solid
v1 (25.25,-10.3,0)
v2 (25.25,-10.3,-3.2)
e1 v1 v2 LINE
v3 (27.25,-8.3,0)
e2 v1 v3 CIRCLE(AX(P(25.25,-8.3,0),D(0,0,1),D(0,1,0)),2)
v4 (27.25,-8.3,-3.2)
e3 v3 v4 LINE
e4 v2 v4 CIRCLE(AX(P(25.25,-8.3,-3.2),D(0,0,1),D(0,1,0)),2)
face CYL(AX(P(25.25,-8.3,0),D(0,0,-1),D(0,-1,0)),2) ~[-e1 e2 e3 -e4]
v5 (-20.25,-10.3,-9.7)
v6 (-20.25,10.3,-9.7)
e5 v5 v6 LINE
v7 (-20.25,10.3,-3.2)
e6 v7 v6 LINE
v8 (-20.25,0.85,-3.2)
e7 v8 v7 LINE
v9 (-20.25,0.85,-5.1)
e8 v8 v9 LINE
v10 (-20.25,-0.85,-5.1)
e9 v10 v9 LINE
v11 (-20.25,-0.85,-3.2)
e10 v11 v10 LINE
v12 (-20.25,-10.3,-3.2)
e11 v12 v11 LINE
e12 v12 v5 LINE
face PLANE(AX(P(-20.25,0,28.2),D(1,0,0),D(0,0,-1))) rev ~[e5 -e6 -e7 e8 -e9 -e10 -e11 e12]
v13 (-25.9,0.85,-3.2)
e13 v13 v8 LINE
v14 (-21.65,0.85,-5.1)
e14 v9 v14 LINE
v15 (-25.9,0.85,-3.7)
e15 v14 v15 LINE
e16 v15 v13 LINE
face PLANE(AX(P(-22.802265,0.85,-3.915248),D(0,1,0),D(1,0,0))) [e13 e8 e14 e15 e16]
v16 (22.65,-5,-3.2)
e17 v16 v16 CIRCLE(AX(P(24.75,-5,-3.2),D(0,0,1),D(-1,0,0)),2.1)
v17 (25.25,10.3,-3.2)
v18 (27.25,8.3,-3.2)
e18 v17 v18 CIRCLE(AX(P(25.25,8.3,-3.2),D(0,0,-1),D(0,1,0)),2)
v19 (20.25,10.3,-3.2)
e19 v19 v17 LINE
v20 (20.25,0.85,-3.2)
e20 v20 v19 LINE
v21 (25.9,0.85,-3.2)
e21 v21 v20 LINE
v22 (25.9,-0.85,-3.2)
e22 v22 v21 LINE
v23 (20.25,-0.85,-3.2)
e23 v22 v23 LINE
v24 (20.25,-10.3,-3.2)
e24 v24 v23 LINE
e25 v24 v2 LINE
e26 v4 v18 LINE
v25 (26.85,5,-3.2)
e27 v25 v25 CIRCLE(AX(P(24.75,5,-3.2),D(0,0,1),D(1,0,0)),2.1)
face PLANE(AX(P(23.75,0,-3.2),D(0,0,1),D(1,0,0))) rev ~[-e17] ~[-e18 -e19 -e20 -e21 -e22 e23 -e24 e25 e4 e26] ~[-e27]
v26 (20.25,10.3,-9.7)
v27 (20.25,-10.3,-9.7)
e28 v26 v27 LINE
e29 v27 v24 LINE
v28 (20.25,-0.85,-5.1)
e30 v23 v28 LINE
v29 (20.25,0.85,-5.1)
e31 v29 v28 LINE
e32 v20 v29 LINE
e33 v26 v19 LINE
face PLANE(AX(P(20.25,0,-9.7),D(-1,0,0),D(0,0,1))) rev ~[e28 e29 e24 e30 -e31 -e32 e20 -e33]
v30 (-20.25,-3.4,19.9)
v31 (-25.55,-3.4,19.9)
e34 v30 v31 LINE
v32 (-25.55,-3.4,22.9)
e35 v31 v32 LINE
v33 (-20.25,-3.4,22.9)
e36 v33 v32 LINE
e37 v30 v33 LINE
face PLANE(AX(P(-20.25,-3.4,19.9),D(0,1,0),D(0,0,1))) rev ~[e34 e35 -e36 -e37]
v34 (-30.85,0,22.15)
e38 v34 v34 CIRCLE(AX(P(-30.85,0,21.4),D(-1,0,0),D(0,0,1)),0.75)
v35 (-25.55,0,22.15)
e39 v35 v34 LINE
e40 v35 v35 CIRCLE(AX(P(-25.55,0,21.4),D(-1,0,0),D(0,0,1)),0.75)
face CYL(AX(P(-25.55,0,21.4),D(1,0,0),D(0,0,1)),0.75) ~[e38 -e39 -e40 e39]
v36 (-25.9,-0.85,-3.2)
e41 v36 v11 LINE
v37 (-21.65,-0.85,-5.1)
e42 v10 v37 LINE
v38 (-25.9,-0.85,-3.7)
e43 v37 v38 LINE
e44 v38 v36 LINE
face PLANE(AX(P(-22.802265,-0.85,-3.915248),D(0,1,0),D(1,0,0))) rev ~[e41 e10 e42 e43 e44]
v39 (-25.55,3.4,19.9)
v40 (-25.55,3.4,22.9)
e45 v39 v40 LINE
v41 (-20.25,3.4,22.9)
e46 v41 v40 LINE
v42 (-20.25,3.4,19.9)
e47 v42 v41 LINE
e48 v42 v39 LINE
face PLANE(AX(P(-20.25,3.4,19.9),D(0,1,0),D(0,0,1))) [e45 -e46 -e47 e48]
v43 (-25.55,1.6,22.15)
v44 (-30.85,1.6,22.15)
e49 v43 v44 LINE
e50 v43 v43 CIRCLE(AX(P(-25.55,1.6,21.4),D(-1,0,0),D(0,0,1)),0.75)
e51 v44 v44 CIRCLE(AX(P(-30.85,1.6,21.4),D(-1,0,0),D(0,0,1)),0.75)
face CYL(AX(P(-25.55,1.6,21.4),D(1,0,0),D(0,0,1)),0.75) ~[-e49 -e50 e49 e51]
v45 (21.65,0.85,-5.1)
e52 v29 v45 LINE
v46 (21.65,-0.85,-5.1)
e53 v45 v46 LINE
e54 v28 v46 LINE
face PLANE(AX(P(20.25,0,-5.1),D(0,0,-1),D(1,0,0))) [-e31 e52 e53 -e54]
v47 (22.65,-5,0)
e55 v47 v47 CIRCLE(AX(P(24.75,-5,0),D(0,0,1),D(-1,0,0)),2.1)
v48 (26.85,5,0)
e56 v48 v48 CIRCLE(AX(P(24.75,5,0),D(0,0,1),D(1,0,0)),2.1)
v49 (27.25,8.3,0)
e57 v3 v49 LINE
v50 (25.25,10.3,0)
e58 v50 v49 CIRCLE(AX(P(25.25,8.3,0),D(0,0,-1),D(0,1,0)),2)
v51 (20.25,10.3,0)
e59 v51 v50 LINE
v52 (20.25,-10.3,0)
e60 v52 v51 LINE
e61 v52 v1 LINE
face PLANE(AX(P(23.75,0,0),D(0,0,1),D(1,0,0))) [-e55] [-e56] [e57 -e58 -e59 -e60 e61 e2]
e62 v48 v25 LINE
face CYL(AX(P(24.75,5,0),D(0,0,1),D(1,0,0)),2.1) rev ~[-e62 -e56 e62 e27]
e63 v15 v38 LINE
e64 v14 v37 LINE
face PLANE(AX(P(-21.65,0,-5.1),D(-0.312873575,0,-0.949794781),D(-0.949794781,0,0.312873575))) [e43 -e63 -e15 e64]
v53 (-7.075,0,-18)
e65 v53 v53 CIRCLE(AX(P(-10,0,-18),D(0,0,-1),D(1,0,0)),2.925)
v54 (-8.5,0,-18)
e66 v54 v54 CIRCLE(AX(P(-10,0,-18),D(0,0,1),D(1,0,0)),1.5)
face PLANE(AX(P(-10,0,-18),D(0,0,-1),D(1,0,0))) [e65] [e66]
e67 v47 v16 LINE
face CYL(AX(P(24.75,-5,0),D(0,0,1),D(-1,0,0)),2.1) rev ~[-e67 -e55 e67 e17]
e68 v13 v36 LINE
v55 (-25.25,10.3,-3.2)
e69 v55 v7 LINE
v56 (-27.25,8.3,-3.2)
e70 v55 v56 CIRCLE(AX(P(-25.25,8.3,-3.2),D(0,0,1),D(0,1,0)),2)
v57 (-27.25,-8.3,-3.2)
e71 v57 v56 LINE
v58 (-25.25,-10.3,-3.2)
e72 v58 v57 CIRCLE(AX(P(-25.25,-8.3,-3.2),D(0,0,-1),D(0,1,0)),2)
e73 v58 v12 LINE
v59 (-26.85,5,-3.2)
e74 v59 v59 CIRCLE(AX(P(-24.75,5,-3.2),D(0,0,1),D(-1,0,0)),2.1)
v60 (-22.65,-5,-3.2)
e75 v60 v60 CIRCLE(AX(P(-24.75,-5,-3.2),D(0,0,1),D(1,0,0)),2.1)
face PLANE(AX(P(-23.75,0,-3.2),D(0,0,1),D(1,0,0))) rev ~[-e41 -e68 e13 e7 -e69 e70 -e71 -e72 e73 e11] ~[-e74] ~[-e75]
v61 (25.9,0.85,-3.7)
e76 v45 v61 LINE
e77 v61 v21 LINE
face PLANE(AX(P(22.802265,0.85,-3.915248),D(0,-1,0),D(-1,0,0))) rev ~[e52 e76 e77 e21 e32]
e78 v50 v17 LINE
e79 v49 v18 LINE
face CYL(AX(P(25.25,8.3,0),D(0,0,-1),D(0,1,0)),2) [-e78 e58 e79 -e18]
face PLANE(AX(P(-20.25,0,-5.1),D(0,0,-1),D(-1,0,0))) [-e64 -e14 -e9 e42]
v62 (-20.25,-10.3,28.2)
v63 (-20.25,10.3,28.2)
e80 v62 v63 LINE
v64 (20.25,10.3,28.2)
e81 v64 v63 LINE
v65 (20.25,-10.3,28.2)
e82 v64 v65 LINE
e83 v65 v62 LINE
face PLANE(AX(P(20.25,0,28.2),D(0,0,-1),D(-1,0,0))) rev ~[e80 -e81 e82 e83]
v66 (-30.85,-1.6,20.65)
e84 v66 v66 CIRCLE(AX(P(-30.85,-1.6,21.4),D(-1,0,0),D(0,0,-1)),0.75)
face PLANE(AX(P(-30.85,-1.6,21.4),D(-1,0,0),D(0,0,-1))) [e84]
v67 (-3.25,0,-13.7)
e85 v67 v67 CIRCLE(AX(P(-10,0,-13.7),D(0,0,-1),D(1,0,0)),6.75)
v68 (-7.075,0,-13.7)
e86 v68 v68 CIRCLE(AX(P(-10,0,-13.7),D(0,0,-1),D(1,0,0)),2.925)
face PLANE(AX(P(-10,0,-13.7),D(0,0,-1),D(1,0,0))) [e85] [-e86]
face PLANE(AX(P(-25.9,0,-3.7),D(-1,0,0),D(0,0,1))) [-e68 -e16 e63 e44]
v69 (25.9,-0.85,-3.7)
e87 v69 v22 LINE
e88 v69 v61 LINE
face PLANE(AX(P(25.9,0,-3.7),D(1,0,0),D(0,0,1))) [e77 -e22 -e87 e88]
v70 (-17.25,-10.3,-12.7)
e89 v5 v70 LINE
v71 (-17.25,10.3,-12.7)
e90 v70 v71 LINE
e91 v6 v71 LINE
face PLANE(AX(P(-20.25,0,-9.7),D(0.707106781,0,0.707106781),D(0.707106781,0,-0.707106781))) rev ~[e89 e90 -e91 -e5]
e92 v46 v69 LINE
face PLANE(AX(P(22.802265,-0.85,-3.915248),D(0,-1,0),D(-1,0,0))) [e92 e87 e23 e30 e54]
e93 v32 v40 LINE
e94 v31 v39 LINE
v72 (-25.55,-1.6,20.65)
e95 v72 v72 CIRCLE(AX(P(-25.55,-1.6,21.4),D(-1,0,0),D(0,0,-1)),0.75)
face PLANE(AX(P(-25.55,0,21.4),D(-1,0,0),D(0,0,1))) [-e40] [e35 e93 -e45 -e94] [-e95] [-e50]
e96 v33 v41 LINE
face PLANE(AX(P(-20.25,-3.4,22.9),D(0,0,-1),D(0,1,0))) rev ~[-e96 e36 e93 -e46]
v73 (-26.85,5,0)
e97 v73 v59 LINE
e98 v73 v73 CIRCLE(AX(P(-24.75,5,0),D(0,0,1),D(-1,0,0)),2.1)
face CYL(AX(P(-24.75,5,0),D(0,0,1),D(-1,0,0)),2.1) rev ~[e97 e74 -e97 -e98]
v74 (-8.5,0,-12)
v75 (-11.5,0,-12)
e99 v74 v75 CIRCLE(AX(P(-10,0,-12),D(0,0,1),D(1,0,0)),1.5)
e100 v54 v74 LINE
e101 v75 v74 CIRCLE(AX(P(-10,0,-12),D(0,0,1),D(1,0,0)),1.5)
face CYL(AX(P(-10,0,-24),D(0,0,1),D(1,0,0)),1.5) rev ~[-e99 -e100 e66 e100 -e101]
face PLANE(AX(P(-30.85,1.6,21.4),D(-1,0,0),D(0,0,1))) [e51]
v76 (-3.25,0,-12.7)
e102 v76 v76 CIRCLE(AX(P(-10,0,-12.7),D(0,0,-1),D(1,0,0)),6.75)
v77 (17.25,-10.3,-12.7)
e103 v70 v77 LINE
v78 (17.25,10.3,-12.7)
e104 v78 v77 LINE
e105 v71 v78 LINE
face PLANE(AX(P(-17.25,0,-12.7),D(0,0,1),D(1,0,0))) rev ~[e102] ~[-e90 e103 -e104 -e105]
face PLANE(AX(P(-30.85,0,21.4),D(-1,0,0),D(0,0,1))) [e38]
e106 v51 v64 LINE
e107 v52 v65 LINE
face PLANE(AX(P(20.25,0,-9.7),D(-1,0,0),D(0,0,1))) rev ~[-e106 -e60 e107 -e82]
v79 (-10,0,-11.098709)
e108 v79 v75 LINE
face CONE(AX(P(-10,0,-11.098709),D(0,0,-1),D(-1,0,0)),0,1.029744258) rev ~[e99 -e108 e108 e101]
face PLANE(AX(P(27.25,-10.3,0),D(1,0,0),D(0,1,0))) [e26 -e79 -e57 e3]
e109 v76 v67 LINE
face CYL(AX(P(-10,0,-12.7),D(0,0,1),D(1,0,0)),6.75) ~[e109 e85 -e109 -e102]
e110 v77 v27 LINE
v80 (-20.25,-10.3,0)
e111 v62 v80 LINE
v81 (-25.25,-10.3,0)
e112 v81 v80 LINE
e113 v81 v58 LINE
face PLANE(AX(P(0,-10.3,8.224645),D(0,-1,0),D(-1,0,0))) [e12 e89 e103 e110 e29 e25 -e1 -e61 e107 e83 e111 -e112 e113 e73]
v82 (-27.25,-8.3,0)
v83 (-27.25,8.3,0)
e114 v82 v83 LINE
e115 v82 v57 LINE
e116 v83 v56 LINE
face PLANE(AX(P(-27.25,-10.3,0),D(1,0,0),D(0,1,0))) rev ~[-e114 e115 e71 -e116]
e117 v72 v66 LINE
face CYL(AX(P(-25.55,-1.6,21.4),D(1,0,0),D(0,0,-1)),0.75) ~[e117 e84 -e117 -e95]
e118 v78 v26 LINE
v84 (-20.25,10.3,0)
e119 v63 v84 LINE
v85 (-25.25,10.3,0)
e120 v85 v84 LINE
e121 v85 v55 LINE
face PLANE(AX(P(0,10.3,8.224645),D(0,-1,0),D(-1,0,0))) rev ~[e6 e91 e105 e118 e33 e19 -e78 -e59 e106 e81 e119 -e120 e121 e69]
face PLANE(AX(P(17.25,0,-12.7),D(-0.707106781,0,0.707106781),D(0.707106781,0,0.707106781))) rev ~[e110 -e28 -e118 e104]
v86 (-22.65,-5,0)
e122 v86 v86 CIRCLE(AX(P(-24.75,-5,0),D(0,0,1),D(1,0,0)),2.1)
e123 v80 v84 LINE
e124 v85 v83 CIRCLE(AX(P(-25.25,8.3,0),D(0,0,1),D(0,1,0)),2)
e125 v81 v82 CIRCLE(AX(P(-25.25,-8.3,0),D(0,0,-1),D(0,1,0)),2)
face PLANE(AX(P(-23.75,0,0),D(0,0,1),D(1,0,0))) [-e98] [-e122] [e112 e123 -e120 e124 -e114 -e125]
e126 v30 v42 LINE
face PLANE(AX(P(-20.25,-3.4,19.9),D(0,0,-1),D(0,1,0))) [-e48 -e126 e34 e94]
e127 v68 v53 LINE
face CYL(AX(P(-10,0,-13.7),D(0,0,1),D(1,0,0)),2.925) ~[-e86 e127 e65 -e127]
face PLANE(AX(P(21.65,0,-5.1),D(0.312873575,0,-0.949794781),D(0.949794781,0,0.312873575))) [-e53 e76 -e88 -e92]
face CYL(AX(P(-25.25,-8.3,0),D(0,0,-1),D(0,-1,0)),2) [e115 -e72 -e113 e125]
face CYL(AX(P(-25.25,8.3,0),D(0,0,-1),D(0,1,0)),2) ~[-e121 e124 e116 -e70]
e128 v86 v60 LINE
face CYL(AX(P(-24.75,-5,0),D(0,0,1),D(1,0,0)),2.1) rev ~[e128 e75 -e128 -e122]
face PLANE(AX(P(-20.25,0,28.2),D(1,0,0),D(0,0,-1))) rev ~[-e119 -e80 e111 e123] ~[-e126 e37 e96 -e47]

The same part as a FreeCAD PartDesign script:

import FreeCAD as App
import Part
import Sketcher

V = App.Vector


def edges_at(feature, points):
    """Names of the edges that pass closest to the given points."""
    edges = feature.Shape.Edges
    near = lambda p: min(range(len(edges)), key=lambda i: edges[i].distToShape(Part.Vertex(*p))[0])
    return sorted({f"Edge{near(p) + 1}" for p in points})

doc = App.newDocument("Part")
body = doc.addObject("PartDesign::Body", "Body")

# Sketch on XZ plane
sketch1 = doc.addObject("Sketcher::SketchObject", "Sketch")
body.addObject(sketch1)
sketch1.AttachmentSupport = (doc.XZ_Plane, [""])
sketch1.MapMode = "FlatFace"
sketch1.addGeometry([
    Part.LineSegment(V(17.25, -12.7, 0), V(-17.25, -12.7, 0)),  # 0
    Part.LineSegment(V(-17.25, -12.7, 0), V(-20.25, -9.7, 0)),  # 1
    Part.LineSegment(V(-20.25, -9.7, 0), V(-20.25, 28.2, 0)),  # 2
    Part.LineSegment(V(-20.25, 28.2, 0), V(20.25, 28.2, 0)),  # 3
    Part.LineSegment(V(20.25, 28.2, 0), V(20.25, -9.7, 0)),  # 4
    Part.LineSegment(V(20.25, -9.7, 0), V(17.25, -12.7, 0)),  # 5
], False)
sketch1.addConstraint([
    Sketcher.Constraint("Coincident", 0, 2, 1, 1),
    Sketcher.Constraint("Coincident", 1, 2, 2, 1),
    Sketcher.Constraint("Coincident", 2, 2, 3, 1),
    Sketcher.Constraint("Coincident", 3, 2, 4, 1),
    Sketcher.Constraint("Coincident", 4, 2, 5, 1),
    Sketcher.Constraint("Coincident", 5, 2, 0, 1),
    Sketcher.Constraint("Horizontal", 0),
    Sketcher.Constraint("Vertical", 2),
    Sketcher.Constraint("Horizontal", 3),
    Sketcher.Constraint("Vertical", 4),
    Sketcher.Constraint("Symmetric", 1, 2, 4, 2, -2),
    Sketcher.Constraint("Perpendicular", 1, 5),
    Sketcher.Constraint("Equal", 1, 5),
    Sketcher.Constraint("DistanceX", 0, 2, 0, 1, 34.5),
    Sketcher.Constraint("DistanceX", 3, 1, 3, 2, 40.5),
    Sketcher.Constraint("DistanceY", 2, 1, 2, 2, 37.9),
    Sketcher.Constraint("DistanceY", 0, 2, -1, 1, 12.7),
])
pad1 = doc.addObject("PartDesign::Pad", "Pad")
body.addObject(pad1)
pad1.Profile = sketch1
pad1.Length = 20.6
pad1.Midplane = True

# Sketch on XY plane
sketch2 = doc.addObject("Sketcher::SketchObject", "Sketch001")
body.addObject(sketch2)
sketch2.AttachmentSupport = (doc.XY_Plane, [""])
sketch2.MapMode = "FlatFace"
sketch2.addGeometry([
    Part.LineSegment(V(20.25, 10.3, 0), V(20.25, -10.3, 0)),  # 0
    Part.LineSegment(V(20.25, -10.3, 0), V(27.25, -10.3, 0)),  # 1
    Part.LineSegment(V(27.25, -10.3, 0), V(27.25, 10.3, 0)),  # 2
    Part.LineSegment(V(27.25, 10.3, 0), V(20.25, 10.3, 0)),  # 3
    Part.Circle(V(24.75, -5, 0), V(0, 0, 1), 2.1),  # 4
    Part.Circle(V(24.75, 5, 0), V(0, 0, 1), 2.1),  # 5
    Part.LineSegment(V(-27.25, 10.3, 0), V(-27.25, -10.3, 0)),  # 6
    Part.LineSegment(V(-27.25, -10.3, 0), V(-20.25, -10.3, 0)),  # 7
    Part.LineSegment(V(-20.25, -10.3, 0), V(-20.25, 10.3, 0)),  # 8
    Part.LineSegment(V(-20.25, 10.3, 0), V(-27.25, 10.3, 0)),  # 9
    Part.Circle(V(-24.75, -5, 0), V(0, 0, 1), 2.1),  # 10
    Part.Circle(V(-24.75, 5, 0), V(0, 0, 1), 2.1),  # 11
], False)
sketch2.addConstraint([
    Sketcher.Constraint("Coincident", 0, 2, 1, 1),
    Sketcher.Constraint("Coincident", 1, 2, 2, 1),
    Sketcher.Constraint("Coincident", 2, 2, 3, 1),
    Sketcher.Constraint("Coincident", 3, 2, 0, 1),
    Sketcher.Constraint("Coincident", 6, 2, 7, 1),
    Sketcher.Constraint("Coincident", 7, 2, 8, 1),
    Sketcher.Constraint("Coincident", 8, 2, 9, 1),
    Sketcher.Constraint("Coincident", 9, 2, 6, 1),
    Sketcher.Constraint("Vertical", 0),
    Sketcher.Constraint("Horizontal", 1),
    Sketcher.Constraint("Vertical", 2),
    Sketcher.Constraint("Horizontal", 3),
    Sketcher.Constraint("Vertical", 6),
    Sketcher.Constraint("Horizontal", 7),
    Sketcher.Constraint("Vertical", 8),
    Sketcher.Constraint("Horizontal", 9),
    Sketcher.Constraint("Equal", 4, 5),
    Sketcher.Constraint("Equal", 5, 10),
    Sketcher.Constraint("Equal", 10, 11),
    Sketcher.Constraint("Symmetric", 5, 3, 10, 3, -1, 1),
    Sketcher.Constraint("Symmetric", 4, 3, 11, 3, -1, 1),
    Sketcher.Constraint("Symmetric", 2, 2, 6, 2, -1, 1),
    Sketcher.Constraint("Symmetric", 0, 2, 8, 2, -1, 1),
    Sketcher.Constraint("Symmetric", 4, 3, 10, 3, -2),
    Sketcher.Constraint("Horizontal", 1, 2, 6, 2),
    Sketcher.Constraint("Diameter", 4, 4.2),
    Sketcher.Constraint("DistanceX", 1, 1, 1, 2, 7.0),
    Sketcher.Constraint("DistanceY", 0, 2, 0, 1, 20.6),
    Sketcher.Constraint("DistanceY", 4, 3, -1, 1, 5.0),
    Sketcher.Constraint("DistanceX", 10, 3, 0, 2, 45.0),
    Sketcher.Constraint("DistanceX", 10, 3, 4, 3, 49.5),
])
pad2 = doc.addObject("PartDesign::Pad", "Pad001")
body.addObject(pad2)
pad2.Profile = sketch2
pad2.Length = 3.2
pad2.Reversed = True

# Sketch on XZ plane
sketch3 = doc.addObject("Sketcher::SketchObject", "Sketch002")
body.addObject(sketch3)
sketch3.AttachmentSupport = (doc.XZ_Plane, [""])
sketch3.MapMode = "FlatFace"
sketch3.addGeometry([
    Part.LineSegment(V(20.25, -5.1, 0), V(20.25, -3.2, 0)),  # 0
    Part.LineSegment(V(20.25, -3.2, 0), V(25.9, -3.2, 0)),  # 1
    Part.LineSegment(V(25.9, -3.2, 0), V(25.9, -3.7, 0)),  # 2
    Part.LineSegment(V(25.9, -3.7, 0), V(21.65, -5.1, 0)),  # 3
    Part.LineSegment(V(21.65, -5.1, 0), V(20.25, -5.1, 0)),  # 4
    Part.LineSegment(V(-25.9, -3.2, 0), V(-20.25, -3.2, 0)),  # 5
    Part.LineSegment(V(-20.25, -3.2, 0), V(-20.25, -5.1, 0)),  # 6
    Part.LineSegment(V(-20.25, -5.1, 0), V(-21.65, -5.1, 0)),  # 7
    Part.LineSegment(V(-21.65, -5.1, 0), V(-25.9, -3.7, 0)),  # 8
    Part.LineSegment(V(-25.9, -3.7, 0), V(-25.9, -3.2, 0)),  # 9
], False)
sketch3.addConstraint([
    Sketcher.Constraint("Coincident", 0, 2, 1, 1),
    Sketcher.Constraint("Coincident", 1, 2, 2, 1),
    Sketcher.Constraint("Coincident", 2, 2, 3, 1),
    Sketcher.Constraint("Coincident", 3, 2, 4, 1),
    Sketcher.Constraint("Coincident", 4, 2, 0, 1),
    Sketcher.Constraint("Coincident", 5, 2, 6, 1),
    Sketcher.Constraint("Coincident", 6, 2, 7, 1),
    Sketcher.Constraint("Coincident", 7, 2, 8, 1),
    Sketcher.Constraint("Coincident", 8, 2, 9, 1),
    Sketcher.Constraint("Coincident", 9, 2, 5, 1),
    Sketcher.Constraint("Vertical", 0),
    Sketcher.Constraint("Horizontal", 1),
    Sketcher.Constraint("Vertical", 2),
    Sketcher.Constraint("Horizontal", 4),
    Sketcher.Constraint("Horizontal", 5),
    Sketcher.Constraint("Vertical", 6),
    Sketcher.Constraint("Horizontal", 7),
    Sketcher.Constraint("Vertical", 9),
    Sketcher.Constraint("Symmetric", 0, 2, 5, 2, -2),
    Sketcher.Constraint("Symmetric", 3, 2, 7, 2, -2),
    Sketcher.Constraint("Symmetric", 2, 2, 8, 2, -2),
    Sketcher.Constraint("DistanceX", 4, 2, 4, 1, 1.4),
    Sketcher.Constraint("DistanceY", 0, 1, 0, 2, 1.9),
    Sketcher.Constraint("DistanceY", 2, 2, 2, 1, 0.5),
    Sketcher.Constraint("DistanceX", 1, 1, 1, 2, 5.65),
    Sketcher.Constraint("DistanceY", 0, 2, -1, 1, 3.2),
    Sketcher.Constraint("DistanceX", -1, 1, 1, 2, 25.9),
])
pad3 = doc.addObject("PartDesign::Pad", "Pad002")
body.addObject(pad3)
pad3.Profile = sketch3
pad3.Length = 1.7
pad3.Midplane = True

# Sketch on XY plane
sketch4 = doc.addObject("Sketcher::SketchObject", "Sketch003")
body.addObject(sketch4)
sketch4.AttachmentSupport = (doc.XY_Plane, [""])
sketch4.MapMode = "FlatFace"
sketch4.AttachmentOffset = App.Placement(V(0, 0, -12.7), App.Rotation())
sketch4.addGeometry(Part.Circle(V(-10, 0, 0), V(0, 0, 1), 6.75), False)
sketch4.addConstraint([
    Sketcher.Constraint("PointOnObject", 0, 3, -1),
    Sketcher.Constraint("Diameter", 0, 13.5),
    Sketcher.Constraint("DistanceX", 0, 3, -1, 1, 10.0),
])
pad4 = doc.addObject("PartDesign::Pad", "Pad003")
body.addObject(pad4)
pad4.Profile = sketch4
pad4.Length = 1
pad4.Reversed = True

# Sketch on XY plane
sketch5 = doc.addObject("Sketcher::SketchObject", "Sketch004")
body.addObject(sketch5)
sketch5.AttachmentSupport = (doc.XY_Plane, [""])
sketch5.MapMode = "FlatFace"
sketch5.AttachmentOffset = App.Placement(V(0, 0, -13.7), App.Rotation())
sketch5.addGeometry(Part.Circle(V(-10, 0, 0), V(0, 0, 1), 2.925), False)
sketch5.addConstraint([
    Sketcher.Constraint("PointOnObject", 0, 3, -1),
    Sketcher.Constraint("Diameter", 0, 5.85),
    Sketcher.Constraint("DistanceX", 0, 3, -1, 1, 10.0),
])
pad5 = doc.addObject("PartDesign::Pad", "Pad004")
body.addObject(pad5)
pad5.Profile = sketch5
pad5.Length = 4.3
pad5.Reversed = True
doc.recompute()

fillet = doc.addObject("PartDesign::Fillet", "Fillet")
body.addObject(fillet)
fillet.Base = (pad5, edges_at(pad5, [
    (27.25, 10.3, -1.6),
    (27.25, -10.3, -1.6),
    (-27.25, -10.3, -1.6),
    (-27.25, 10.3, -1.6),
]))
fillet.Radius = 2

# Sketch on YZ plane
sketch6 = doc.addObject("Sketcher::SketchObject", "Sketch005")
body.addObject(sketch6)
sketch6.AttachmentSupport = (doc.YZ_Plane, [""])
sketch6.MapMode = "FlatFace"
sketch6.AttachmentOffset = App.Placement(V(0, 0, -20.25), App.Rotation())
sketch6.addGeometry([
    Part.LineSegment(V(3.4, 19.9, 0), V(-3.4, 19.9, 0)),
    Part.LineSegment(V(-3.4, 19.9, 0), V(-3.4, 22.9, 0)),
    Part.LineSegment(V(-3.4, 22.9, 0), V(3.4, 22.9, 0)),
    Part.LineSegment(V(3.4, 22.9, 0), V(3.4, 19.9, 0)),
], False)
sketch6.addConstraint([
    Sketcher.Constraint("Coincident", 0, 2, 1, 1),
    Sketcher.Constraint("Coincident", 1, 2, 2, 1),
    Sketcher.Constraint("Coincident", 2, 2, 3, 1),
    Sketcher.Constraint("Coincident", 3, 2, 0, 1),
    Sketcher.Constraint("Horizontal", 0),
    Sketcher.Constraint("Vertical", 1),
    Sketcher.Constraint("Horizontal", 2),
    Sketcher.Constraint("Vertical", 3),
    Sketcher.Constraint("DistanceY", 1, 1, 1, 2, 3.0),
    Sketcher.Constraint("DistanceX", 0, 2, 0, 1, 6.8),
    Sketcher.Constraint("DistanceX", 0, 2, -1, 1, 3.4),
    Sketcher.Constraint("DistanceY", -1, 1, 0, 2, 19.9),
])
pad6 = doc.addObject("PartDesign::Pad", "Pad005")
body.addObject(pad6)
pad6.Profile = sketch6
pad6.Length = 5.3
pad6.Reversed = True

# Sketch on YZ plane
sketch7 = doc.addObject("Sketcher::SketchObject", "Sketch006")
body.addObject(sketch7)
sketch7.AttachmentSupport = (doc.YZ_Plane, [""])
sketch7.MapMode = "FlatFace"
sketch7.AttachmentOffset = App.Placement(V(0, 0, -25.55), App.Rotation())
sketch7.addGeometry([
    Part.Circle(V(0, 21.4, 0), V(0, 0, 1), 0.75),
    Part.Circle(V(1.6, 21.4, 0), V(0, 0, 1), 0.75),
    Part.Circle(V(-1.6, 21.4, 0), V(0, 0, 1), 0.75),
], False)
sketch7.addConstraint([
    Sketcher.Constraint("Equal", 0, 1),
    Sketcher.Constraint("Equal", 1, 2),
    Sketcher.Constraint("Symmetric", 1, 3, 2, 3, -2),
    Sketcher.Constraint("PointOnObject", 0, 3, -2),
    Sketcher.Constraint("Horizontal", 0, 3, 1, 3),
    Sketcher.Constraint("Diameter", 0, 1.5),
    Sketcher.Constraint("DistanceY", -1, 1, 0, 3, 21.4),
    Sketcher.Constraint("DistanceX", -1, 1, 1, 3, 1.6),
])
pad7 = doc.addObject("PartDesign::Pad", "Pad006")
body.addObject(pad7)
pad7.Profile = sketch7
pad7.Length = 5.3
pad7.Reversed = True

# Sketch on XY plane
sketch8 = doc.addObject("Sketcher::SketchObject", "Sketch007")
body.addObject(sketch8)
sketch8.AttachmentSupport = (doc.XY_Plane, [""])
sketch8.MapMode = "FlatFace"
sketch8.AttachmentOffset = App.Placement(V(0, 0, -18), App.Rotation())
sketch8.addGeometry(Part.Circle(V(-10, 0, 0), V(0, 0, 1), 1.5), False)
sketch8.addConstraint([
    Sketcher.Constraint("PointOnObject", 0, 3, -1),
    Sketcher.Constraint("Diameter", 0, 3.0),
    Sketcher.Constraint("DistanceX", 0, 3, -1, 1, 10.0),
])
doc.recompute()
hole = doc.addObject("PartDesign::Hole", "Hole")
body.addObject(hole)
hole.Profile = sketch8
hole.ThreadType = "None"
hole.Diameter = 3
hole.DepthType = "Dimension"
hole.Depth = 6
hole.DrillPoint = "Angled"
hole.DrillPointAngle = 118
hole.Reversed = True

doc.recompute()
